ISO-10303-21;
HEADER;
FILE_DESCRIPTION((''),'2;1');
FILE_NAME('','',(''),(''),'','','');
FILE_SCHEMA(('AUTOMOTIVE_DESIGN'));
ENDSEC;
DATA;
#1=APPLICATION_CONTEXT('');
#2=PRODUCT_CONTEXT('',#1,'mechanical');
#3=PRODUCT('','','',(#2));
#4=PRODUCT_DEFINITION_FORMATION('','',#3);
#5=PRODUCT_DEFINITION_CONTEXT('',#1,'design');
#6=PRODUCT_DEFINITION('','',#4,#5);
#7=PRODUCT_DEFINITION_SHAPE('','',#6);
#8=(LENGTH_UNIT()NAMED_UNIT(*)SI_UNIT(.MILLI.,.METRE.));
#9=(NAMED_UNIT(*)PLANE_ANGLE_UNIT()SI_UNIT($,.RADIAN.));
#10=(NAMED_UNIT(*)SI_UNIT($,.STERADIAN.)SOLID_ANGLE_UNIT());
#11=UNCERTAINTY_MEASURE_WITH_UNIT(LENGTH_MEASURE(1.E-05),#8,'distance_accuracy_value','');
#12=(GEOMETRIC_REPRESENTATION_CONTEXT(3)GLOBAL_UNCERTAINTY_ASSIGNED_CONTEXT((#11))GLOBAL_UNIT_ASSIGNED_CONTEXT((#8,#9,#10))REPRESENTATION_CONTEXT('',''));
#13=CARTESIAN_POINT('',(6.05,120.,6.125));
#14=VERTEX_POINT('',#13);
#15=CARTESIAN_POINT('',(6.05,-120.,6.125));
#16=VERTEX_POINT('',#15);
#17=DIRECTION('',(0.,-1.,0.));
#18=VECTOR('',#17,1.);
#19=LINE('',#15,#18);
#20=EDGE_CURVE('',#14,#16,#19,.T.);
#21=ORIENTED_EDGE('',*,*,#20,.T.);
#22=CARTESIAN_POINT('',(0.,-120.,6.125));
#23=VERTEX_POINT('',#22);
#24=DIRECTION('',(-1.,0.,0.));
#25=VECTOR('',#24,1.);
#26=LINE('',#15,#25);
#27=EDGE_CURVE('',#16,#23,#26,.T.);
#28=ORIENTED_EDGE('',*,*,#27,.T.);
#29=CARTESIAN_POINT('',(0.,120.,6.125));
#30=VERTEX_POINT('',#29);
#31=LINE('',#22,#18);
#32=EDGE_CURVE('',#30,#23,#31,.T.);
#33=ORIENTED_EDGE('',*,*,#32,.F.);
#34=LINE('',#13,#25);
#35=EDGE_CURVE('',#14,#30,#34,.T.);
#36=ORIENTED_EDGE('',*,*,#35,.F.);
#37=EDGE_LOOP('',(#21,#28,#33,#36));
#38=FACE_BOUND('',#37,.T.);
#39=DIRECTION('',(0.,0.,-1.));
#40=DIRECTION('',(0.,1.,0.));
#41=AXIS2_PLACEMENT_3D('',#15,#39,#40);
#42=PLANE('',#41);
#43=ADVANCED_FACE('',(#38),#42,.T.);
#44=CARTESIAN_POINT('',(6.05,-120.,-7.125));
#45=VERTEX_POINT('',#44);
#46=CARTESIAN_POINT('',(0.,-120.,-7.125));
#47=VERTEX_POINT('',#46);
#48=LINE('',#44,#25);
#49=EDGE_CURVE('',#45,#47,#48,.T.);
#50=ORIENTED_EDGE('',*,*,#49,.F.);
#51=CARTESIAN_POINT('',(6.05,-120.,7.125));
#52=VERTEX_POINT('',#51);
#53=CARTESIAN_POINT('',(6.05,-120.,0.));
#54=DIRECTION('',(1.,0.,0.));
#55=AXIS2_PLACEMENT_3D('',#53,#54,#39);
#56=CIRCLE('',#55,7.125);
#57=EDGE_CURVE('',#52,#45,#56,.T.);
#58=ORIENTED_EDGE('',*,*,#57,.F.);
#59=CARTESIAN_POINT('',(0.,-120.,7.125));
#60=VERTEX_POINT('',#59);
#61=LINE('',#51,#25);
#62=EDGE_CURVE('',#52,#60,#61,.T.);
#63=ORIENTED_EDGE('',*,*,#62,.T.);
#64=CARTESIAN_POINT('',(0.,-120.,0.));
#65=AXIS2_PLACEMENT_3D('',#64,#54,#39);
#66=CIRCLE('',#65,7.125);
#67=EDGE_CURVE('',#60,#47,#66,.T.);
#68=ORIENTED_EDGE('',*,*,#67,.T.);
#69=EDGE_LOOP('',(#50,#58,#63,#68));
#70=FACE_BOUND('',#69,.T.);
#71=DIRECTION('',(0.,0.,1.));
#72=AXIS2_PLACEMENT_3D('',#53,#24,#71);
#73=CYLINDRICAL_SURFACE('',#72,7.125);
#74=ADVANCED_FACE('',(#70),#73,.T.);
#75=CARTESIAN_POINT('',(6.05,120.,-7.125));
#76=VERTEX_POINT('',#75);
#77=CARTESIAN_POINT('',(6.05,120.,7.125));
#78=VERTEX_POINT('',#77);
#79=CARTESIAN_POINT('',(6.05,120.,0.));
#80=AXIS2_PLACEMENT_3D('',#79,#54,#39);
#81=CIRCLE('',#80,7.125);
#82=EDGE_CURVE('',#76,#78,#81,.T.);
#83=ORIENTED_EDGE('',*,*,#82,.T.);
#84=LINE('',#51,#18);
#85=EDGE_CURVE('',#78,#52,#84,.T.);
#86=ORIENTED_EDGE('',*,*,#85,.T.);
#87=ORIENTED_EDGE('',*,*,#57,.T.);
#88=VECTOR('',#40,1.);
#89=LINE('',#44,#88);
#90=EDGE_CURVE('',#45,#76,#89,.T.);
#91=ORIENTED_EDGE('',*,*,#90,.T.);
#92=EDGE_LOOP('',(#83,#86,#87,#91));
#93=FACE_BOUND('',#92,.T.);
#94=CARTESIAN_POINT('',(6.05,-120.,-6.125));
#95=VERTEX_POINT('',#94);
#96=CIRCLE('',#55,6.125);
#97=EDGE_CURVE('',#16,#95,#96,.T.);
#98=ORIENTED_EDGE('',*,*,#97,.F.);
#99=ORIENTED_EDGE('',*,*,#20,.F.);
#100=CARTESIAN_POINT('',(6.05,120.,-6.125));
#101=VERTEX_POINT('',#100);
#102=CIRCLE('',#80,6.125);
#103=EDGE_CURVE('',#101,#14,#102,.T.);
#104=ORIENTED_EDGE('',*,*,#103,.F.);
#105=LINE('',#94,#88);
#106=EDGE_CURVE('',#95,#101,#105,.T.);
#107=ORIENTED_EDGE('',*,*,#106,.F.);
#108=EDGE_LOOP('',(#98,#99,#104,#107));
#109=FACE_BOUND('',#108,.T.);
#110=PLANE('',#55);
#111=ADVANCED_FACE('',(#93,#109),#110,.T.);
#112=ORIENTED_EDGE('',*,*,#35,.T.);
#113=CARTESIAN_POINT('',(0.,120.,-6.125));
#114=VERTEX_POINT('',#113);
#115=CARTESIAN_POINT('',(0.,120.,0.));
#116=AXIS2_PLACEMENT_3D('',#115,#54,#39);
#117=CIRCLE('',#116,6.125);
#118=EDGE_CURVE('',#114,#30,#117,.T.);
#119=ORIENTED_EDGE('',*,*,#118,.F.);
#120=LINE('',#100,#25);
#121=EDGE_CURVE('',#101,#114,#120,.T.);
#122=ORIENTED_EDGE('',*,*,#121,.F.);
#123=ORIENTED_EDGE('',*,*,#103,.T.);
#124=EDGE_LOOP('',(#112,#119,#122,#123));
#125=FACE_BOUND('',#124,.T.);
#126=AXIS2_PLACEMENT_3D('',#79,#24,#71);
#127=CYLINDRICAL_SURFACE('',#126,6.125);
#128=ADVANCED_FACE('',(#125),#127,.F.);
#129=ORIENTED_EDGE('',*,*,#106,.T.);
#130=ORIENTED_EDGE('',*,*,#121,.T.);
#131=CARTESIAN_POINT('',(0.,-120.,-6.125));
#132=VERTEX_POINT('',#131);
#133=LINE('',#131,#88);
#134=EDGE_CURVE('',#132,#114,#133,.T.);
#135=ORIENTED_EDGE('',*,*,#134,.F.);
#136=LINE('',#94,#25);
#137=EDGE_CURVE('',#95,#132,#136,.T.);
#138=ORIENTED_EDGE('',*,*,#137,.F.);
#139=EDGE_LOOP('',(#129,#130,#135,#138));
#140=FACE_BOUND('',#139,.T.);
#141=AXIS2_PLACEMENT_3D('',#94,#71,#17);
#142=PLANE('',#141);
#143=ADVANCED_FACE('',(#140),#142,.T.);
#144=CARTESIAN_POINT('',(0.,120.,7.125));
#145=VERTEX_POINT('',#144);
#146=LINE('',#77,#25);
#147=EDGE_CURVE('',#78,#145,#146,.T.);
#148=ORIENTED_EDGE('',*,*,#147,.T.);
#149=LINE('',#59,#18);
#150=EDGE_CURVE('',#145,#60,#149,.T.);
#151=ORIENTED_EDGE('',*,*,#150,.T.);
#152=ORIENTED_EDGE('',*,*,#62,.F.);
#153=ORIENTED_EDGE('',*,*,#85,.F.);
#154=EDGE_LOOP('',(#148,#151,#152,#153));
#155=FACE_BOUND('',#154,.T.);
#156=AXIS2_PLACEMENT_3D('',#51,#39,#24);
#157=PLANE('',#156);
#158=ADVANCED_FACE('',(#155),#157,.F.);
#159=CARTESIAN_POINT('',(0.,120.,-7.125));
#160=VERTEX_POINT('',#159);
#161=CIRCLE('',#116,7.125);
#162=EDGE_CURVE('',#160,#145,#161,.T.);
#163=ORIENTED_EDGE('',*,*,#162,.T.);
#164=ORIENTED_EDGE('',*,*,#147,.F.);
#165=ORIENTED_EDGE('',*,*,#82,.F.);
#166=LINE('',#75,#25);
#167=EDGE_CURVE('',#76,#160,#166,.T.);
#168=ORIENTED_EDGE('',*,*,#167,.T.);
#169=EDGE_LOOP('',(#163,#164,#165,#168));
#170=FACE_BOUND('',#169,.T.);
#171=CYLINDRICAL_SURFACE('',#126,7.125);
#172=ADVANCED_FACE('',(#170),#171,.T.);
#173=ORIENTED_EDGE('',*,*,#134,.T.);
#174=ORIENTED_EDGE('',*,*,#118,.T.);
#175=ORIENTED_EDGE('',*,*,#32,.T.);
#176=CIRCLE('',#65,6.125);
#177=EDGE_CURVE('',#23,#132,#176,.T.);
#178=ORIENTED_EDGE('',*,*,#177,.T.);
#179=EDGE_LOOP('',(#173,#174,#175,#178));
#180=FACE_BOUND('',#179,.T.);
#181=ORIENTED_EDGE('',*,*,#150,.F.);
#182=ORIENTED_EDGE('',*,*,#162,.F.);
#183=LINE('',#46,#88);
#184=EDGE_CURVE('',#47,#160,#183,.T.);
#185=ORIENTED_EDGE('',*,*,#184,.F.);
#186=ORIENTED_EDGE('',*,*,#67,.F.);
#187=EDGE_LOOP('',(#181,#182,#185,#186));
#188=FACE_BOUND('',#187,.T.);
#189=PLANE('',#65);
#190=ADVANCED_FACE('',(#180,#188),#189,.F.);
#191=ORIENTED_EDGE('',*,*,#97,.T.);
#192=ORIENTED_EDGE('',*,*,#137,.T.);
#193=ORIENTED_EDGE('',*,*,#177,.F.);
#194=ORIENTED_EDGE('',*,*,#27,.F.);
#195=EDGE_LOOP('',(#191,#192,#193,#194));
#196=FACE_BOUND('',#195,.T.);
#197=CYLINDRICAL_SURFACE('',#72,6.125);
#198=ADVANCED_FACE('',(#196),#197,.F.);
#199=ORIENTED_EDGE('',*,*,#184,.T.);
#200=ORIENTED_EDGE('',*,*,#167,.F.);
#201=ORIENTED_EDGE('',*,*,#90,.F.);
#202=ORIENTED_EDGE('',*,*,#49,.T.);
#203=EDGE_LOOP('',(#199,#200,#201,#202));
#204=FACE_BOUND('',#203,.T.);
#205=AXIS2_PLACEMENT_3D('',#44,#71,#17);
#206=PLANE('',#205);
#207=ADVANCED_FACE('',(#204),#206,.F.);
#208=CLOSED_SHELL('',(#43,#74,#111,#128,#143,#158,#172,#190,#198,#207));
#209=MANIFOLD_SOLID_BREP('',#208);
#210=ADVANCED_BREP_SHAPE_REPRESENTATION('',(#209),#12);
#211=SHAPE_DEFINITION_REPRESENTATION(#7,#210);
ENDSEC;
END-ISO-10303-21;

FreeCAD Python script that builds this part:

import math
import FreeCAD as App
import Part
import Sketcher
from FreeCAD import Vector

doc = App.newDocument("Part")
params = doc.addObject("Spreadsheet::Sheet", "Params")
for row, (alias, value) in enumerate([
    ("sketch1_width", "240 mm"),
    ("pad1_length", "6.05 mm"),
], start=1):
    params.set(f"A{row}", alias)
    params.set(f"B{row}", "=" + value)
    params.setAlias(f"B{row}", alias)

body = doc.addObject("PartDesign::Body", "Body")

# Sketch on YZ plane
sketch1 = body.newObject("Sketcher::SketchObject", "Sketch")
sketch1.AttachmentSupport = (doc.getObject("YZ_Plane"), [""])
sketch1.MapMode = "FlatFace"
sketch1.addGeometry([
    Part.LineSegment(Vector(120, 7.125, 0), Vector(-120, 7.125, 0)),  # 0
    Part.ArcOfCircle(Part.Circle(Vector(-120, 0, 0), Vector(0, 0, 1), 7.125), math.radians(90), math.radians(270)),  # 1
    Part.LineSegment(Vector(-120, -7.125, 0), Vector(120, -7.125, 0)),  # 2
    Part.ArcOfCircle(Part.Circle(Vector(120, 0, 0), Vector(0, 0, 1), 7.125), math.radians(-90), math.radians(90)),  # 3
    Part.LineSegment(Vector(-120, 6.125, 0), Vector(120, 6.125, 0)),  # 4
    Part.ArcOfCircle(Part.Circle(Vector(120, 0, 0), Vector(0, 0, 1), 6.125), math.radians(-90), math.radians(90)),  # 5
    Part.LineSegment(Vector(120, -6.125, 0), Vector(-120, -6.125, 0)),  # 6
    Part.ArcOfCircle(Part.Circle(Vector(-120, 0, 0), Vector(0, 0, 1), 6.125), math.radians(90), math.radians(270)),  # 7
], False)
sketch1.addConstraint([
    Sketcher.Constraint("Tangent", 0, 2, 1, 1),
    Sketcher.Constraint("Tangent", 1, 2, 2, 1),
    Sketcher.Constraint("Tangent", 2, 2, 3, 1),
    Sketcher.Constraint("Tangent", 3, 2, 0, 1),
    Sketcher.Constraint("Tangent", 4, 2, 5, 2),
    Sketcher.Constraint("Tangent", 5, 1, 6, 1),
    Sketcher.Constraint("Tangent", 6, 2, 7, 2),
    Sketcher.Constraint("Tangent", 7, 1, 4, 1),
    Sketcher.Constraint("Horizontal", 0),
    Sketcher.Constraint("Horizontal", 2),
    Sketcher.Constraint("Horizontal", 4),
    Sketcher.Constraint("Horizontal", 6),
    Sketcher.Constraint("Coincident", 5, 3, 3, 3),
    Sketcher.Constraint("Symmetric", 1, 3, 3, 3, -1, 1),
    Sketcher.Constraint("Vertical", 7, 3, 0, 2),
    Sketcher.Constraint("DistanceX", 0, 2, 0, 1, 240.0),
    Sketcher.Constraint("Radius", 1, 7.125),
    Sketcher.Constraint("Radius", 5, 6.125),
])
sketch1.setExpression("Constraints[15]", "Params.sketch1_width")
pad1 = body.newObject("PartDesign::Pad", "Pad")
pad1.Profile = sketch1
pad1.setExpression("Length", "Params.pad1_length")

doc.recompute()
